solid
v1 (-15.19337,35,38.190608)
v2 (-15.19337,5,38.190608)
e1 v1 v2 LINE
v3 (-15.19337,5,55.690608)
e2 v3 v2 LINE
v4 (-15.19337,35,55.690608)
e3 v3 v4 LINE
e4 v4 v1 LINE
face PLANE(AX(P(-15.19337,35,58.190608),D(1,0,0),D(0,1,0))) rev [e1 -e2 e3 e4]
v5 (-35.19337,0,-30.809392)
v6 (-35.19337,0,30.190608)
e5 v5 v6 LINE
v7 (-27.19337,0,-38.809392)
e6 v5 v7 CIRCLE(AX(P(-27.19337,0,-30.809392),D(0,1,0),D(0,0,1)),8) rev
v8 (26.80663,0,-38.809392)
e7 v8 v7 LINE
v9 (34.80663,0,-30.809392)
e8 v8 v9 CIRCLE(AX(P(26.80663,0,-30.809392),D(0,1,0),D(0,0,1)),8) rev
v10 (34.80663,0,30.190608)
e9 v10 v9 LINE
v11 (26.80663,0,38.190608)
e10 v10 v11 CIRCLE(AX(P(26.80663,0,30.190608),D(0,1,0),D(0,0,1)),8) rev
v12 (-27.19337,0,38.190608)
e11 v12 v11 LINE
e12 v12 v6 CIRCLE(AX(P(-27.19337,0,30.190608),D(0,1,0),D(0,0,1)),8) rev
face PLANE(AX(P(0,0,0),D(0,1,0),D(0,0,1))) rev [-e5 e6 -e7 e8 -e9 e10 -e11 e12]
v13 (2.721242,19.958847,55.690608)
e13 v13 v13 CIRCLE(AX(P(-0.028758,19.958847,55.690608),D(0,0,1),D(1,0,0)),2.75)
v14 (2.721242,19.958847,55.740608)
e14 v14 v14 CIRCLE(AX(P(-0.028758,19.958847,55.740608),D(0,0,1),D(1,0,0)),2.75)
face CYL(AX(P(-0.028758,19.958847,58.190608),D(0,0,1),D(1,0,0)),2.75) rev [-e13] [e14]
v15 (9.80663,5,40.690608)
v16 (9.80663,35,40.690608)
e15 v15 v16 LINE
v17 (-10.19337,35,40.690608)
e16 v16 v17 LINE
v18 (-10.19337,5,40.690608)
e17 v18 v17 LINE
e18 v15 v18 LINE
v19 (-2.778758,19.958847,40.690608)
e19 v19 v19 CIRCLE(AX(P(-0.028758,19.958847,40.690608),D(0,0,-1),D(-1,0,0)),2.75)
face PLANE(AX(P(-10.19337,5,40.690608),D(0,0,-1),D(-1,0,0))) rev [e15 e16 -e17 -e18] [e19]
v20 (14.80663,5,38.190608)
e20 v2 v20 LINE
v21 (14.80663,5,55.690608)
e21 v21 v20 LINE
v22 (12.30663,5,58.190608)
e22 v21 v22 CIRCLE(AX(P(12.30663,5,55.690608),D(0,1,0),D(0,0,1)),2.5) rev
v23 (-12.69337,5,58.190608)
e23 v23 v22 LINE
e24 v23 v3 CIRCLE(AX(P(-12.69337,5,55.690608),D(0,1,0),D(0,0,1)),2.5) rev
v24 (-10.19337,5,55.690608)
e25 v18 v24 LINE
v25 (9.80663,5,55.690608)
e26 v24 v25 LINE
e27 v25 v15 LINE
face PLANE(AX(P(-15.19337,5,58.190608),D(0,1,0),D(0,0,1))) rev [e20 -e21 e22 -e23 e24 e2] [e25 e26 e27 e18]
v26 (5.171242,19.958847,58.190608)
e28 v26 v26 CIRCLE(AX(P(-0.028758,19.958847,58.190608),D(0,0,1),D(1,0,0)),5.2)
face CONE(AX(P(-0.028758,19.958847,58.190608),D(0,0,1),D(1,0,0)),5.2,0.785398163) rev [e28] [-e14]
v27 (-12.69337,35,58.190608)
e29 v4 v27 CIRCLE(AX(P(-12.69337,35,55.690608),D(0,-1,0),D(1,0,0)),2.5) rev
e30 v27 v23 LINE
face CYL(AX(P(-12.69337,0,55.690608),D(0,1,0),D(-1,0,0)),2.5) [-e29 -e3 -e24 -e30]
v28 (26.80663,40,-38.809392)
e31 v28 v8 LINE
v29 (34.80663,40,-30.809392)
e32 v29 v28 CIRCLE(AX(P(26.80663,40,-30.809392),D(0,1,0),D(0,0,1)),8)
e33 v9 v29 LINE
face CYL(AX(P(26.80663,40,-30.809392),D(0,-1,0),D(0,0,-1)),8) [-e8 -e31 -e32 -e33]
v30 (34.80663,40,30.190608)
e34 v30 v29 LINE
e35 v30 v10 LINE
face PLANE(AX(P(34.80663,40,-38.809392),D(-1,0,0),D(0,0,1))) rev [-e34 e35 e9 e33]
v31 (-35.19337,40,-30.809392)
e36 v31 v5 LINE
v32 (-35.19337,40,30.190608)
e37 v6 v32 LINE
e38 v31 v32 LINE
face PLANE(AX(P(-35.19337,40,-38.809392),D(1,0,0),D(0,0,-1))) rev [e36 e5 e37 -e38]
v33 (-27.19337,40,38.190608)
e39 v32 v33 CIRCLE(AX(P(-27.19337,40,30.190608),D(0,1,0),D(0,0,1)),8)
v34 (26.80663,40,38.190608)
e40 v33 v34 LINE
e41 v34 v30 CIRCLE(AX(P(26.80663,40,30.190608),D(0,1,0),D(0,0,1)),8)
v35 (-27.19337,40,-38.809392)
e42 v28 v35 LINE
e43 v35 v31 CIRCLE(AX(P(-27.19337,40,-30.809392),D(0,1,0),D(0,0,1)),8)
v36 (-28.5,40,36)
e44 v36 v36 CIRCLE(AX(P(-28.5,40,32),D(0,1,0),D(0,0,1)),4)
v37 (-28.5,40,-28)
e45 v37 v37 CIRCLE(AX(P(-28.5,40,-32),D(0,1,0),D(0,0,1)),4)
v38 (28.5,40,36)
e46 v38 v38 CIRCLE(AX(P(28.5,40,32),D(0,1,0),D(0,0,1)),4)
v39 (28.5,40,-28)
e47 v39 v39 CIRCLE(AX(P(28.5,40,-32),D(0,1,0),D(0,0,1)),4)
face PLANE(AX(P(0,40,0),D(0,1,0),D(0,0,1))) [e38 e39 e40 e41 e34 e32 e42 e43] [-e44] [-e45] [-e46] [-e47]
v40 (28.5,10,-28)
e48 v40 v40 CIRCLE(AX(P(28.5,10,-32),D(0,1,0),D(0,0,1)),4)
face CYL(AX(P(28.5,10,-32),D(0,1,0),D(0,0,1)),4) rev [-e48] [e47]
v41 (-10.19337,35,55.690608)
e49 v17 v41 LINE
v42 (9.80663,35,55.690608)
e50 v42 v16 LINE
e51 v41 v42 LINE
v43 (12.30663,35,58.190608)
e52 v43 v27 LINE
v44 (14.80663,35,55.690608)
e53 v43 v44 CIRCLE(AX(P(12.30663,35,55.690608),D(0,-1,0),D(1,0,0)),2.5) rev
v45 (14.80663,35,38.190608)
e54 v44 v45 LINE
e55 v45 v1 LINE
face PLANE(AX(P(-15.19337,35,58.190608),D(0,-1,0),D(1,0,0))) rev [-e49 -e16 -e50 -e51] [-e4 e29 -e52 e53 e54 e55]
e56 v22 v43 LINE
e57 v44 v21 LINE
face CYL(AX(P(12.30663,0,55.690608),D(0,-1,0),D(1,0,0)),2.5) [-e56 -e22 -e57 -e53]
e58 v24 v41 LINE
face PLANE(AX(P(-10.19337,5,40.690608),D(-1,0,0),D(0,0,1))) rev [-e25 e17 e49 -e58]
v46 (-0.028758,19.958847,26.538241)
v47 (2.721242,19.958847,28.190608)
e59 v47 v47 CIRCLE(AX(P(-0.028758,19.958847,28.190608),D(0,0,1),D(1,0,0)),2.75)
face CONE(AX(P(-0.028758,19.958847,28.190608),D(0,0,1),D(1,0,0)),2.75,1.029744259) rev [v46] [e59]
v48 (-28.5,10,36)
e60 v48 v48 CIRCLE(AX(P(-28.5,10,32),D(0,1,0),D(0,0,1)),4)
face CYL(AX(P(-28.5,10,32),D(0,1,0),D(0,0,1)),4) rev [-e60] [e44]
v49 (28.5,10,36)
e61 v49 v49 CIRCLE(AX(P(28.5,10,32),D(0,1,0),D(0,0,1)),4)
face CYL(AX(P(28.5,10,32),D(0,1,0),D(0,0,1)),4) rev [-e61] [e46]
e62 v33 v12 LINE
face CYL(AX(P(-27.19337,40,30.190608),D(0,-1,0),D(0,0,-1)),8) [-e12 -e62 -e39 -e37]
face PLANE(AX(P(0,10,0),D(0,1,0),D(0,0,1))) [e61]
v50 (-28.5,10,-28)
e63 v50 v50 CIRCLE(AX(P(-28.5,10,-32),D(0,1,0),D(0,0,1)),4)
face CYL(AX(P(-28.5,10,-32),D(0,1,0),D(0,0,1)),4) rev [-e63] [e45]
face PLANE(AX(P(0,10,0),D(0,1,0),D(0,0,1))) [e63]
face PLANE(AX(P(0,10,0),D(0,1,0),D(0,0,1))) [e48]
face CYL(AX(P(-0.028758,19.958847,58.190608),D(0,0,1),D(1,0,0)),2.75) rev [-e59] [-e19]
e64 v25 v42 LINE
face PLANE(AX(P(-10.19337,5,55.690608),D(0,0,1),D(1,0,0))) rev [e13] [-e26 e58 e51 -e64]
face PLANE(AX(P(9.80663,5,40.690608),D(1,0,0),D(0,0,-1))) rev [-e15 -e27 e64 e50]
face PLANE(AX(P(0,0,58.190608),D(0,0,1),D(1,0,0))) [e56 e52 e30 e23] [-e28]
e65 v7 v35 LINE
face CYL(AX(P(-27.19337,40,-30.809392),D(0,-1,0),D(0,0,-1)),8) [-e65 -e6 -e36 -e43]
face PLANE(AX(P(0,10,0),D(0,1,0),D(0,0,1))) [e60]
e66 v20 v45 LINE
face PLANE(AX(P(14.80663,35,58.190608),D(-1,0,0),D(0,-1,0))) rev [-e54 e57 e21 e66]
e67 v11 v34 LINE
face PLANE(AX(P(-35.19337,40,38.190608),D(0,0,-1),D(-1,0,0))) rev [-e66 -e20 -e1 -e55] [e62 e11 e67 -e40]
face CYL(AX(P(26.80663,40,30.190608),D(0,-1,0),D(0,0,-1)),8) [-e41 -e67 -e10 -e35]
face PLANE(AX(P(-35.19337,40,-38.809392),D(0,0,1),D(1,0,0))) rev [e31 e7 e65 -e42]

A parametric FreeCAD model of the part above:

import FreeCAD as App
import Part
import Sketcher
from FreeCAD import Vector


def edges_at(feature, points):
    """Names of the edges that pass closest to the given points."""
    edges = feature.Shape.Edges
    near = lambda p: min(range(len(edges)), key=lambda i: edges[i].distToShape(Part.Vertex(*p))[0])
    return sorted({f"Edge{near(p) + 1}" for p in points})


def add_polygon(sketch, points):
    """Adds a closed chain of lines whose ends are joined by coincident constraints."""
    first, n = sketch.GeometryCount, len(points)
    for a, b in zip(points, points[1:] + points[:1]):
        sketch.addGeometry(Part.LineSegment(App.Vector(*a, 0), App.Vector(*b, 0)), False)
    for i in range(n):
        sketch.addConstraint(Sketcher.Constraint("Coincident", first + i, 2, first + (i + 1) % n, 1))

doc = App.newDocument("Part")
body = doc.addObject("PartDesign::Body", "Body")

sketch1 = body.newObject("Sketcher::SketchObject", "Sketch")
sketch1.AttachmentSupport = (doc.getObject("XZ_Plane"), [""])
sketch1.MapMode = "FlatFace"
add_polygon(sketch1, [(-35, -39), (-35, 38), (35, 38), (35, -39)])
sketch1.addConstraint([
    Sketcher.Constraint("Vertical", 0),
    Sketcher.Constraint("Horizontal", 1),
    Sketcher.Constraint("Vertical", 2),
    Sketcher.Constraint("Horizontal", 3),
    Sketcher.Constraint("DistanceX", 1, 1, 1, 2, 70.0),
    Sketcher.Constraint("DistanceY", 0, 1, 0, 2, 77.0),
    Sketcher.Constraint("DistanceX", 0, 2, -1, 1, 35.19337),
    Sketcher.Constraint("DistanceY", -1, 1, 0, 2, 38.190608),
])
pad1 = body.newObject("PartDesign::Pad", "Pad")
pad1.Profile = sketch1
pad1.Length = 40
pad1.Reversed = True

sketch2 = body.newObject("Sketcher::SketchObject", "Sketch001")
sketch2.AttachmentSupport = (doc.getObject("XZ_Plane"), [""])
sketch2.MapMode = "FlatFace"
sketch2.AttachmentOffset = App.Placement(Vector(0, 0, -40), App.Rotation())
sketch2.addGeometry([
    Part.Circle(Vector(-28.5, -32, 0), Vector(0, 0, 1), 4),
    Part.Circle(Vector(28.5, -32, 0), Vector(0, 0, 1), 4),
    Part.Circle(Vector(-28.5, 32, 0), Vector(0, 0, 1), 4),
    Part.Circle(Vector(28.5, 32, 0), Vector(0, 0, 1), 4),
], False)
sketch2.addConstraint([
    Sketcher.Constraint("Equal", 0, 1),
    Sketcher.Constraint("Equal", 1, 2),
    Sketcher.Constraint("Equal", 2, 3),
    Sketcher.Constraint("Symmetric", 1, 3, 2, 3, -1, 1),
    Sketcher.Constraint("Symmetric", 0, 3, 3, 3, -1, 1),
    Sketcher.Constraint("Symmetric", 0, 3, 1, 3, -2),
    Sketcher.Constraint("Diameter", 0, 8.0),
    Sketcher.Constraint("DistanceY", 0, 3, -1, 1, 32.0),
    Sketcher.Constraint("DistanceX", 0, 3, 1, 3, 57.0),
])
pocket1 = body.newObject("PartDesign::Pocket", "Pocket")
pocket1.Profile = sketch2
pocket1.Length = 30
pocket1.Reversed = True

sketch3 = body.newObject("Sketcher::SketchObject", "Sketch002")
sketch3.AttachmentSupport = (doc.getObject("XY_Plane"), [""])
sketch3.MapMode = "FlatFace"
sketch3.AttachmentOffset = App.Placement(Vector(0, 0, 38.190608), App.Rotation())
add_polygon(sketch3, [(-15, 35), (-15, 5), (15, 5), (15, 35)])
sketch3.addConstraint([
    Sketcher.Constraint("Vertical", 0),
    Sketcher.Constraint("Horizontal", 1),
    Sketcher.Constraint("Vertical", 2),
    Sketcher.Constraint("Horizontal", 3),
    Sketcher.Constraint("Equal", 3, 0),
    Sketcher.Constraint("DistanceX", 1, 1, 1, 2, 30.0),
    Sketcher.Constraint("DistanceY", -1, 1, 0, 2, 5.0),
    Sketcher.Constraint("DistanceX", 0, 2, -1, 1, 15.19337),
])
pad2 = body.newObject("PartDesign::Pad", "Pad001")
pad2.Profile = sketch3
pad2.Length = 20

sketch4 = body.newObject("Sketcher::SketchObject", "Sketch003")
sketch4.AttachmentSupport = (doc.getObject("XZ_Plane"), [""])
sketch4.MapMode = "FlatFace"
sketch4.AttachmentOffset = App.Placement(Vector(0, 0, -35), App.Rotation())
add_polygon(sketch4, [(-10, 41), (-10, 56), (10, 56), (10, 41)])
sketch4.addConstraint([
    Sketcher.Constraint("Vertical", 0),
    Sketcher.Constraint("Horizontal", 1),
    Sketcher.Constraint("Vertical", 2),
    Sketcher.Constraint("Horizontal", 3),
    Sketcher.Constraint("DistanceX", 1, 1, 1, 2, 20.0),
    Sketcher.Constraint("DistanceY", 0, 1, 0, 2, 15.0),
    Sketcher.Constraint("DistanceX", 0, 2, -1, 1, 10.19337),
    Sketcher.Constraint("DistanceY", -1, 1, 0, 2, 55.690608),
])
pocket2 = body.newObject("PartDesign::Pocket", "Pocket001")
pocket2.Profile = sketch4
pocket2.Length = 30
pocket2.Reversed = True

sketch5 = body.newObject("Sketcher::SketchObject", "Sketch004")
sketch5.AttachmentSupport = (doc.getObject("XY_Plane"), [""])
sketch5.MapMode = "FlatFace"
sketch5.AttachmentOffset = App.Placement(Vector(0, 0, 58.190608), App.Rotation())
sketch5.addGeometry(Part.Circle(Vector(0, 20, 0), Vector(0, 0, 1), 2.8), False)
sketch5.addConstraint([
    Sketcher.Constraint("Diameter", 0, 5.5),
    Sketcher.Constraint("DistanceX", 0, 3, -1, 1, 0.028758),
    Sketcher.Constraint("DistanceY", -1, 1, 0, 3, 19.958847),
])
doc.recompute()
hole = body.newObject("PartDesign::Hole", "Hole")
hole.Profile = sketch5
hole.ThreadType = "None"
hole.Diameter = 5.5
hole.DepthType = "Dimension"
hole.Depth = 30
hole.DrillPoint = "Angled"
hole.DrillPointAngle = 118
hole.HoleCutType = "Countersink"
hole.HoleCutDiameter = 10.4
hole.HoleCutCountersinkAngle = 90
doc.recompute()

fillet = body.newObject("PartDesign::Fillet", "Fillet")
fillet.Base = (hole, edges_at(hole, [
    (34.807, 20, 38.191),
    (-35.193, 20, 38.191),
    (-35.193, 20, -38.809),
    (34.807, 20, -38.809),
]))
fillet.Radius = 8
doc.recompute()

fillet2 = body.newObject("PartDesign::Fillet", "Fillet001")
fillet2.Base = (fillet, edges_at(fillet, [(-15.193, 20, 58.191), (14.807, 20, 58.191)]))
fillet2.Radius = 2.5

doc.recompute()
